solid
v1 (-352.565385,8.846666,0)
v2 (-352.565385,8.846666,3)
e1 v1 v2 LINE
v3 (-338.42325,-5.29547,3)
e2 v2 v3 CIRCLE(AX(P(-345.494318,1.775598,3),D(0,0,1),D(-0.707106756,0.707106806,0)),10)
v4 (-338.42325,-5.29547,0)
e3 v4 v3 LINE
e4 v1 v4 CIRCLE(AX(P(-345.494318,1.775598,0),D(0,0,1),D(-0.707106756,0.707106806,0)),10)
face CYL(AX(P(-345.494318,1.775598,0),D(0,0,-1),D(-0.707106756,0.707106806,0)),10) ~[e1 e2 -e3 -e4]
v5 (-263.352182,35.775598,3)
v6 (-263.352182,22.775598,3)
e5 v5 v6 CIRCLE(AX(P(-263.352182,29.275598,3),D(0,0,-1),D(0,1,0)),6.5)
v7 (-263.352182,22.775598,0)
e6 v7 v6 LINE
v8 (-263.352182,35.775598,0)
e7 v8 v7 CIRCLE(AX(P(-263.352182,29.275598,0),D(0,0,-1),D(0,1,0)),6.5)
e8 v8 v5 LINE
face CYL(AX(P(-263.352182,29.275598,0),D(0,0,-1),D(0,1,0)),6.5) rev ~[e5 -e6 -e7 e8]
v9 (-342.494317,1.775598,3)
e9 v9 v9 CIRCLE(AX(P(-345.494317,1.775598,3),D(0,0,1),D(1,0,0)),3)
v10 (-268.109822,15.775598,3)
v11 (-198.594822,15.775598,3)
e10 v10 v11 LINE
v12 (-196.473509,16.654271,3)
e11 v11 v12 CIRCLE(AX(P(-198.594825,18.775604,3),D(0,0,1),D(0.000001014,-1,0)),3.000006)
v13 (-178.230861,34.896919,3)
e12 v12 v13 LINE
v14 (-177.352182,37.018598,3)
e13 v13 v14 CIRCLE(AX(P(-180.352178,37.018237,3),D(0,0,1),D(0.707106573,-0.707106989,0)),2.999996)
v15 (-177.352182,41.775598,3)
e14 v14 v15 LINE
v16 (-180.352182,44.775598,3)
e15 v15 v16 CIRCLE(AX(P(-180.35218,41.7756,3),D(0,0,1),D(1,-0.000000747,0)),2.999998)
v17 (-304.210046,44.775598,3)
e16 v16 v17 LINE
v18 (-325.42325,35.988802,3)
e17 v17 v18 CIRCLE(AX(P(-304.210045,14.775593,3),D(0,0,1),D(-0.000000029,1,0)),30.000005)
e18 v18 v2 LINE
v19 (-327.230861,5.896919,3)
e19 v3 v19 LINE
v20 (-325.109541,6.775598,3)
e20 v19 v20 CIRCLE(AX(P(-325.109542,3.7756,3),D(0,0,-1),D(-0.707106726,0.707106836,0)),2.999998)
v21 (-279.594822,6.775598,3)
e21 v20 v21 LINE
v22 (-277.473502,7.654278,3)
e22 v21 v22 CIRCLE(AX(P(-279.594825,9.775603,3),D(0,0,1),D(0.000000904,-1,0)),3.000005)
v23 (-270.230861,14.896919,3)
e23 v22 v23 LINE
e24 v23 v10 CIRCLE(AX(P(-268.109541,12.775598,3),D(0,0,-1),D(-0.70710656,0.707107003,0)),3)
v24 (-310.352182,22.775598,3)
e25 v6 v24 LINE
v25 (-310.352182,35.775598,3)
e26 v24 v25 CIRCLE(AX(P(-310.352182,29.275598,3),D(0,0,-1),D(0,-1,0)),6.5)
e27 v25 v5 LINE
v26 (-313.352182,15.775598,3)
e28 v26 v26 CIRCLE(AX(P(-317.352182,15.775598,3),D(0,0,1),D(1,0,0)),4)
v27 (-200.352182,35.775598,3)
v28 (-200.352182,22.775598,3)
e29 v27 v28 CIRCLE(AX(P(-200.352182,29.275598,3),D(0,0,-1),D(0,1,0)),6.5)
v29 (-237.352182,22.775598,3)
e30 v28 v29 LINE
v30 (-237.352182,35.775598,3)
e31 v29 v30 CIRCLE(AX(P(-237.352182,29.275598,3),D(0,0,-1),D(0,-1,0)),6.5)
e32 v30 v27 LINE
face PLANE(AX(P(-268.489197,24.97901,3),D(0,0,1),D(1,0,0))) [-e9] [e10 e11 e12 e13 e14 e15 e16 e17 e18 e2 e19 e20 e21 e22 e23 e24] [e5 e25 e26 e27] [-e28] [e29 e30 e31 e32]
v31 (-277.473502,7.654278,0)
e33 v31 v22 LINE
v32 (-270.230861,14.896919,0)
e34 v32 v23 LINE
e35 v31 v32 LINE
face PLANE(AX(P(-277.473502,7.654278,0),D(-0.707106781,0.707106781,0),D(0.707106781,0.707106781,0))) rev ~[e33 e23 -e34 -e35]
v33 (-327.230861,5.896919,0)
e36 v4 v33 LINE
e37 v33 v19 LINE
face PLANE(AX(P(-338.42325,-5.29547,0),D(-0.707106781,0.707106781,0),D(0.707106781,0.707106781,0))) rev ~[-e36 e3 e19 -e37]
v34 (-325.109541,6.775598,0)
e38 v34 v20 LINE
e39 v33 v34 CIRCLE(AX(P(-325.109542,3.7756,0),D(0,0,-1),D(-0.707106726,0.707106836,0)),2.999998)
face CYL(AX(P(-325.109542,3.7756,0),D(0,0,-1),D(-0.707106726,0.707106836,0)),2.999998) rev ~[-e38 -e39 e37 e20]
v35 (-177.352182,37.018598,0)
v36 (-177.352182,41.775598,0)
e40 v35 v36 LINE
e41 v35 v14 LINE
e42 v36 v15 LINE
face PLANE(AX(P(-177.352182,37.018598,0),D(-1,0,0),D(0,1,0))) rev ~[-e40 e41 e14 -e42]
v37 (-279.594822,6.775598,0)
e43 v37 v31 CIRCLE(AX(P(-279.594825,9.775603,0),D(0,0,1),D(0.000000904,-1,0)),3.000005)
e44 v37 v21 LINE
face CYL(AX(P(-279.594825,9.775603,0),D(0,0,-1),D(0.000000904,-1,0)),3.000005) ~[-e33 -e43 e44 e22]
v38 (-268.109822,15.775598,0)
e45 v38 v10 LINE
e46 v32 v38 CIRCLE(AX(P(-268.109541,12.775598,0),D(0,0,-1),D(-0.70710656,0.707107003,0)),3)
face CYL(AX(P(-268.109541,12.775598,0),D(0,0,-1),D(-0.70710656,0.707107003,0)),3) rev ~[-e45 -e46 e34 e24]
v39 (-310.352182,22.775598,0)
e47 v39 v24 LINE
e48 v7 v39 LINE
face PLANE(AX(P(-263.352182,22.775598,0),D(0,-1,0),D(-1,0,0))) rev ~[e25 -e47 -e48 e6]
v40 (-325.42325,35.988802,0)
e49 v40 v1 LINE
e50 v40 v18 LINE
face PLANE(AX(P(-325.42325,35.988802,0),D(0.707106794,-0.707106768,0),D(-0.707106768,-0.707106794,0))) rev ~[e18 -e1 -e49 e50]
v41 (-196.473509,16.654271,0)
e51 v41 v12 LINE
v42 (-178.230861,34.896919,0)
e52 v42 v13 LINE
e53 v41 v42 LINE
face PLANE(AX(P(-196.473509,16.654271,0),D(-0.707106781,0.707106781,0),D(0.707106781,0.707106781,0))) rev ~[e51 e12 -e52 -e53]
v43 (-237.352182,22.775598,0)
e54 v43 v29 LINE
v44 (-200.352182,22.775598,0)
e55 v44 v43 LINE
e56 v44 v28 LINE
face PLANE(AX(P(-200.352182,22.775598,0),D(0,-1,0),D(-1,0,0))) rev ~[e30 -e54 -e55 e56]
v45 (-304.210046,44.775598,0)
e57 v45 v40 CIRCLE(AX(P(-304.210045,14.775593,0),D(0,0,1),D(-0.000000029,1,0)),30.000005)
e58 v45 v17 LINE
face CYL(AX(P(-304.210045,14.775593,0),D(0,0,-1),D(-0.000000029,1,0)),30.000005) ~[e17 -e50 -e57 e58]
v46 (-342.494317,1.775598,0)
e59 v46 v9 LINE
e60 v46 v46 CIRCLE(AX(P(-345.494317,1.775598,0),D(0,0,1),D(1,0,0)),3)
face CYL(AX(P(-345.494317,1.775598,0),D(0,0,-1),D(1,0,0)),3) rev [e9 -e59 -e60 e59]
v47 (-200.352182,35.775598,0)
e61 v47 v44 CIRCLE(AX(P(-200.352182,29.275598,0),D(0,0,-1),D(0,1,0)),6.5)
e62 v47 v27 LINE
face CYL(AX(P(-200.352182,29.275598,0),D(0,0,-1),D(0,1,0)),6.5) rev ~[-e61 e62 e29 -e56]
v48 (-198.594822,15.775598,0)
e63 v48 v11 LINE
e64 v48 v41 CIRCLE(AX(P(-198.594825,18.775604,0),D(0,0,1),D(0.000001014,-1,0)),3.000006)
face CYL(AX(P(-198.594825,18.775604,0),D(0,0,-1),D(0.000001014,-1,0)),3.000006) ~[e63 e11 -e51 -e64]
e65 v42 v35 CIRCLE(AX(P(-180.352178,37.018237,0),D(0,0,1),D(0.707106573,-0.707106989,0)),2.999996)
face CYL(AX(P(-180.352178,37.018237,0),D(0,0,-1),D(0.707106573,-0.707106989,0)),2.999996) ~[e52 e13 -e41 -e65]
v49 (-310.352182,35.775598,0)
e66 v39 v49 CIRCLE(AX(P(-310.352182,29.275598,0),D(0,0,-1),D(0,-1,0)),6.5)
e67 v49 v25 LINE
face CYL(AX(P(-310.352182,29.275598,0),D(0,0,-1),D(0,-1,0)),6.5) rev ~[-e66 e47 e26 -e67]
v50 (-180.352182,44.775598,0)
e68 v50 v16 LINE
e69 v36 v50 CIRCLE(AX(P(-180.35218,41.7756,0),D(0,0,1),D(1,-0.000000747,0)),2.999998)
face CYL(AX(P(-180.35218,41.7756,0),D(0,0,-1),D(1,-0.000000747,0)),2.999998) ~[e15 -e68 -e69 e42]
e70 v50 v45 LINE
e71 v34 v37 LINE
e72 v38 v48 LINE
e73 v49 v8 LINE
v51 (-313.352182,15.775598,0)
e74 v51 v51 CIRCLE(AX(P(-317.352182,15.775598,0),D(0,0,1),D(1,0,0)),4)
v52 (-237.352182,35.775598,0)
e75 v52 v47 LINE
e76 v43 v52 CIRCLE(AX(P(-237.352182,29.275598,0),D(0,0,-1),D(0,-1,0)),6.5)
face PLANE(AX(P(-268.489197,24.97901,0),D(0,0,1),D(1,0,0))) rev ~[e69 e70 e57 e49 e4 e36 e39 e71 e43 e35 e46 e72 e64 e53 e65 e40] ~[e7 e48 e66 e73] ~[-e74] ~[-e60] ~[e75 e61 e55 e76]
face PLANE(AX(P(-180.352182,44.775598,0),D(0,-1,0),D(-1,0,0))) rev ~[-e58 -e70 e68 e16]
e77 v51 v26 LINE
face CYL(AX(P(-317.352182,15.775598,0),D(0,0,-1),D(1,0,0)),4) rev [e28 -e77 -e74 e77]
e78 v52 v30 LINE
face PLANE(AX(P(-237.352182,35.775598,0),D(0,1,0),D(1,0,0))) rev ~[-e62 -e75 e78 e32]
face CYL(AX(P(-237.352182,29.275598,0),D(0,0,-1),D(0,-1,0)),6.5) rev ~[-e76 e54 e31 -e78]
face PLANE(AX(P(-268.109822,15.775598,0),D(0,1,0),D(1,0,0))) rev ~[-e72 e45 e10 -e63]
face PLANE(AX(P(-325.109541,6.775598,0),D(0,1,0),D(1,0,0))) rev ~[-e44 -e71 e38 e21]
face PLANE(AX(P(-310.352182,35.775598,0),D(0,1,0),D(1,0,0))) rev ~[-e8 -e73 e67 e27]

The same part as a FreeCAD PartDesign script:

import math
import FreeCAD as App
import Part
import Sketcher

V = App.Vector
Q = App.Units.Quantity

doc = App.newDocument("Part")
body = doc.addObject("PartDesign::Body", "Body")

sketch1 = body.newObject("Sketcher::SketchObject", "Sketch")
sketch1.AttachmentSupport = (doc.getObject("XY_Plane"), [""])
sketch1.MapMode = "FlatFace"
sketch1.addGeometry([
    Part.LineSegment(V(-325.4, 36, 0), V(-352.6, 8.8, 0)),
    Part.ArcOfCircle(Part.Circle(V(-345.5, 1.8, 0), V(0, 0, 1), 10), math.radians(135), math.radians(315)),
    Part.LineSegment(V(-338.4, -5.3, 0), V(-327.2, 5.9, 0)),
    Part.ArcOfCircle(Part.Circle(V(-325.1, 3.8, 0), V(0, 0, 1), 3), math.radians(90), math.radians(135)),
    Part.LineSegment(V(-325.1, 6.8, 0), V(-279.6, 6.8, 0)),
    Part.ArcOfCircle(Part.Circle(V(-279.6, 9.8, 0), V(0, 0, 1), 3), math.radians(-90), math.radians(-45)),
    Part.LineSegment(V(-277.5, 7.7, 0), V(-270.2, 14.9, 0)),
    Part.ArcOfCircle(Part.Circle(V(-268.1, 12.8, 0), V(0, 0, 1), 3), math.radians(90), math.radians(135)),
    Part.LineSegment(V(-268.1, 15.8, 0), V(-198.6, 15.8, 0)),
    Part.ArcOfCircle(Part.Circle(V(-198.6, 18.8, 0), V(0, 0, 1), 3), math.radians(-90), math.radians(-45)),
    Part.LineSegment(V(-196.5, 16.7, 0), V(-178.2, 34.9, 0)),
    Part.ArcOfCircle(Part.Circle(V(-180.4, 37, 0), V(0, 0, 1), 3), math.radians(-45), math.radians(0)),
    Part.LineSegment(V(-177.4, 37, 0), V(-177.4, 41.8, 0)),
    Part.ArcOfCircle(Part.Circle(V(-180.4, 41.8, 0), V(0, 0, 1), 3), math.radians(0), math.radians(90)),
    Part.LineSegment(V(-180.4, 44.8, 0), V(-304.2, 44.8, 0)),
    Part.ArcOfCircle(Part.Circle(V(-304.2, 14.8, 0), V(0, 0, 1), 30), math.radians(90), math.radians(135)),
    Part.Circle(V(-345.5, 1.8, 0), V(0, 0, 1), 3),
    Part.Circle(V(-317.4, 15.8, 0), V(0, 0, 1), 4),
    Part.LineSegment(V(-263.4, 22.8, 0), V(-310.4, 22.8, 0)),
    Part.ArcOfCircle(Part.Circle(V(-310.4, 29.3, 0), V(0, 0, 1), 6.5), math.radians(90), math.radians(270)),
    Part.LineSegment(V(-310.4, 35.8, 0), V(-263.4, 35.8, 0)),
    Part.ArcOfCircle(Part.Circle(V(-263.4, 29.3, 0), V(0, 0, 1), 6.5), math.radians(-90), math.radians(90)),
    Part.LineSegment(V(-200.4, 22.8, 0), V(-237.4, 22.8, 0)),
    Part.ArcOfCircle(Part.Circle(V(-237.4, 29.3, 0), V(0, 0, 1), 6.5), math.radians(90), math.radians(270)),
    Part.LineSegment(V(-237.4, 35.8, 0), V(-200.4, 35.8, 0)),
    Part.ArcOfCircle(Part.Circle(V(-200.4, 29.3, 0), V(0, 0, 1), 6.5), math.radians(-90), math.radians(90)),
], False)
sketch1.addConstraint([
    Sketcher.Constraint("Tangent", 0, 2, 1, 1),
    Sketcher.Constraint("Tangent", 1, 2, 2, 1),
    Sketcher.Constraint("Tangent", 2, 2, 3, 2),
    Sketcher.Constraint("Tangent", 3, 1, 4, 1),
    Sketcher.Constraint("Tangent", 4, 2, 5, 1),
    Sketcher.Constraint("Tangent", 5, 2, 6, 1),
    Sketcher.Constraint("Tangent", 6, 2, 7, 2),
    Sketcher.Constraint("Coincident", 7, 1, 8, 1),
    Sketcher.Constraint("Tangent", 8, 2, 9, 1),
    Sketcher.Constraint("Coincident", 9, 2, 10, 1),
    Sketcher.Constraint("Tangent", 10, 2, 11, 1),
    Sketcher.Constraint("Coincident", 11, 2, 12, 1),
    Sketcher.Constraint("Tangent", 12, 2, 13, 1),
    Sketcher.Constraint("Tangent", 13, 2, 14, 1),
    Sketcher.Constraint("Tangent", 14, 2, 15, 1),
    Sketcher.Constraint("Tangent", 15, 2, 0, 1),
    Sketcher.Constraint("Tangent", 18, 2, 19, 2),
    Sketcher.Constraint("Tangent", 19, 1, 20, 1),
    Sketcher.Constraint("Tangent", 20, 2, 21, 2),
    Sketcher.Constraint("Tangent", 21, 1, 18, 1),
    Sketcher.Constraint("Tangent", 22, 2, 23, 2),
    Sketcher.Constraint("Tangent", 23, 1, 24, 1),
    Sketcher.Constraint("Tangent", 24, 2, 25, 2),
    Sketcher.Constraint("Tangent", 25, 1, 22, 1),
    Sketcher.Constraint("Horizontal", 4),
    Sketcher.Constraint("Horizontal", 8),
    Sketcher.Constraint("Vertical", 12),
    Sketcher.Constraint("Horizontal", 14),
    Sketcher.Constraint("Horizontal", 18),
    Sketcher.Constraint("Horizontal", 20),
    Sketcher.Constraint("Horizontal", 22),
    Sketcher.Constraint("Horizontal", 24),
    Sketcher.Constraint("Coincident", 16, 3, 1, 3),
    Sketcher.Constraint("Equal", 3, 7),
    Sketcher.Constraint("Equal", 5, 9),
    Sketcher.Constraint("Equal", 3, 13),
    Sketcher.Constraint("Equal", 7, 16),
    Sketcher.Constraint("Equal", 21, 23),
    Sketcher.Constraint("Parallel", 0, 2),
    Sketcher.Constraint("Parallel", 2, 6),
    Sketcher.Constraint("Parallel", 6, 10),
    Sketcher.Constraint("Horizontal", 21, 3, 23, 3),
    Sketcher.Constraint("Horizontal", 17, 3, 7, 1),
    Sketcher.Constraint("Diameter", 16, 6.0),
    Sketcher.Constraint("Diameter", 17, 8.0),
    Sketcher.Constraint("Radius", 1, 10.0),
    Sketcher.Constraint("Radius", 19, 6.5),
    Sketcher.Constraint("DistanceX", 18, 2, 18, 1, 47.0),
    Sketcher.Constraint("DistanceX", 22, 2, 22, 1, 37.0),
    Sketcher.Constraint("Angle", 0, Q("-134.999999 deg")),
    Sketcher.Constraint("DistanceY", 1, 3, 3, 3, 2.000002),
    Sketcher.Constraint("DistanceX", 3, 3, 7, 3, 57.000001),
    Sketcher.Constraint("DistanceY", 3, 3, 7, 3, 8.999998),
    Sketcher.Constraint("DistanceX", 5, 3, 9, 3, 81.0),
    Sketcher.Constraint("DistanceY", 3, 3, 13, 3, 38.000001),
    Sketcher.Constraint("DistanceX", 17, 3, 19, 3, 7.0),
    Sketcher.Constraint("DistanceX", 21, 3, 23, 3, 26.0),
    Sketcher.Constraint("DistanceX", 25, 3, 11, 2, 23.0),
    Sketcher.Constraint("DistanceY", 17, 3, 18, 2, 7.0),
    Sketcher.Constraint("DistanceX", 8, 1, 8, 2, 69.515),
    Sketcher.Constraint("DistanceY", 12, 1, 12, 2, 4.757),
    Sketcher.Constraint("Distance", 10, 25.799),
    Sketcher.Constraint("Radius", 5, 3.000005),
    Sketcher.Constraint("Radius", 11, 2.999996),
    Sketcher.Constraint("Radius", 15, 30.000005),
    Sketcher.Constraint("DistanceY", -1, 1, 3, 3, 3.7756),
    Sketcher.Constraint("DistanceX", 5, 2, -1, 1, 277.473502),
    Sketcher.Constraint("DistanceX", 14, 2, 14, 1, 123.857864),
])
pad1 = body.newObject("PartDesign::Pad", "Pad")
pad1.Profile = sketch1
pad1.Length = 3

doc.recompute()
